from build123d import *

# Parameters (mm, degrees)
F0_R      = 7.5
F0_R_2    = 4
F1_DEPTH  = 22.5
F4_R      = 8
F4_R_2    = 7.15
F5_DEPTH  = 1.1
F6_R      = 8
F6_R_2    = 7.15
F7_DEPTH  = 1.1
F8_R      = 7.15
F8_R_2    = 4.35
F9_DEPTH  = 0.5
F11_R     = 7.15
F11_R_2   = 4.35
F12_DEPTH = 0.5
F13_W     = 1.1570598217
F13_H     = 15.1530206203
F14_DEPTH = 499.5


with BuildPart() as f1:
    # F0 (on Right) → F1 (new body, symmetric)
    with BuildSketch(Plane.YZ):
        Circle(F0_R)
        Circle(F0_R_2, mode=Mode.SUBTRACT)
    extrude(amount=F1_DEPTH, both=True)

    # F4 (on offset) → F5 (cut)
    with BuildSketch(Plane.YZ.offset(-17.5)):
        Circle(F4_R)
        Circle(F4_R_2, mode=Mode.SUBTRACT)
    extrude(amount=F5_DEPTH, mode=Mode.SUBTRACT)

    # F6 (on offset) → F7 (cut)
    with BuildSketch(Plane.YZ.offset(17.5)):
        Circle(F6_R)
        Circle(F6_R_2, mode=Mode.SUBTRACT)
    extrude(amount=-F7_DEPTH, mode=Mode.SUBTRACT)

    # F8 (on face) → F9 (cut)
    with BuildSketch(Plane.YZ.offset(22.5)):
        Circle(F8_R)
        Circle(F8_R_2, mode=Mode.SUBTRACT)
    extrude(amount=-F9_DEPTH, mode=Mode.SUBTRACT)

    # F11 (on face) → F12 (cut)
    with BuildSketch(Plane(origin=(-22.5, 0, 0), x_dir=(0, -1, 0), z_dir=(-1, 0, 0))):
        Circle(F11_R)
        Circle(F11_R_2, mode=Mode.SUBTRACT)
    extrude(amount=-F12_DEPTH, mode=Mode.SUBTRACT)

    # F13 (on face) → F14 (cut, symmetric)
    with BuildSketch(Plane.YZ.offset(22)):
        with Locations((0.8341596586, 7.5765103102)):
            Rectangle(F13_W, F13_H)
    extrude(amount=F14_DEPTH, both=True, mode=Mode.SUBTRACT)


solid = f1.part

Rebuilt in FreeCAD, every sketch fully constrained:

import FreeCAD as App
import Part
import Sketcher

V = App.Vector


def add_polygon(sketch, points):
    """Adds a closed chain of lines whose ends are joined by coincident constraints."""
    first, n = sketch.GeometryCount, len(points)
    for a, b in zip(points, points[1:] + points[:1]):
        sketch.addGeometry(Part.LineSegment(App.Vector(*a, 0), App.Vector(*b, 0)), False)
    for i in range(n):
        sketch.addConstraint(Sketcher.Constraint("Coincident", first + i, 2, first + (i + 1) % n, 1))

doc = App.newDocument("Part")
params = doc.addObject("Spreadsheet::Sheet", "Params")
for row, (alias, value) in enumerate([
    ("sketch1_diameter", "15 mm"),
    ("sketch1_diameter2", "8 mm"),
    ("pad1_length", "45 mm"),
    ("sketch2_diameter", "16 mm"),
    ("sketch2_diameter2", "14.3 mm"),
    ("pocket1_length", "1.1 mm"),
    ("sketch3_diameter", "16 mm"),
    ("sketch3_diameter2", "14.3 mm"),
    ("pocket2_length", "1.1 mm"),
    ("sketch4_diameter", "14.3 mm"),
    ("sketch4_diameter2", "8.7 mm"),
    ("pocket3_length", "0.5 mm"),
    ("sketch5_diameter", "14.3 mm"),
    ("sketch5_diameter2", "8.7 mm"),
    ("pocket4_length", "0.5 mm"),
    ("pocket5_length", "999 mm"),
], start=1):
    params.set(f"A{row}", alias)
    params.set(f"B{row}", "=" + value)
    params.setAlias(f"B{row}", alias)

body = doc.addObject("PartDesign::Body", "Body")

# Sketch on YZ plane
sketch1 = body.newObject("Sketcher::SketchObject", "Sketch")
sketch1.AttachmentSupport = (doc.getObject("YZ_Plane"), [""])
sketch1.MapMode = "FlatFace"
sketch1.addGeometry([
    Part.Circle(V(0, 0, 0), V(0, 0, 1), 7.5),
    Part.Circle(V(0, 0, 0), V(0, 0, 1), 4),
], False)
sketch1.addConstraint([
    Sketcher.Constraint("Coincident", 0, 3, -1, 1),
    Sketcher.Constraint("Coincident", 1, 3, -1, 1),
    Sketcher.Constraint("Diameter", 0, 15.0),
    Sketcher.Constraint("Diameter", 1, 8.0),
])
sketch1.setExpression("Constraints[2]", "Params.sketch1_diameter")
sketch1.setExpression("Constraints[3]", "Params.sketch1_diameter2")
pad1 = body.newObject("PartDesign::Pad", "Pad")
pad1.Profile = sketch1
pad1.setExpression("Length", "Params.pad1_length")
pad1.Midplane = True

# Sketch on YZ plane
sketch2 = body.newObject("Sketcher::SketchObject", "Sketch001")
sketch2.AttachmentSupport = (doc.getObject("YZ_Plane"), [""])
sketch2.MapMode = "FlatFace"
sketch2.AttachmentOffset = App.Placement(V(0, 0, -17.5), App.Rotation())
sketch2.addGeometry([
    Part.Circle(V(0, 0, 0), V(0, 0, 1), 8),
    Part.Circle(V(0, 0, 0), V(0, 0, 1), 7),
], False)
sketch2.addConstraint([
    Sketcher.Constraint("Coincident", 0, 3, -1, 1),
    Sketcher.Constraint("Coincident", 1, 3, -1, 1),
    Sketcher.Constraint("Diameter", 0, 16.0),
    Sketcher.Constraint("Diameter", 1, 14.3),
])
sketch2.setExpression("Constraints[2]", "Params.sketch2_diameter")
sketch2.setExpression("Constraints[3]", "Params.sketch2_diameter2")
pocket1 = body.newObject("PartDesign::Pocket", "Pocket")
pocket1.Profile = sketch2
pocket1.setExpression("Length", "Params.pocket1_length")
pocket1.Reversed = True

# Sketch on YZ plane
sketch3 = body.newObject("Sketcher::SketchObject", "Sketch002")
sketch3.AttachmentSupport = (doc.getObject("YZ_Plane"), [""])
sketch3.MapMode = "FlatFace"
sketch3.AttachmentOffset = App.Placement(V(0, 0, 17.5), App.Rotation())
sketch3.addGeometry([
    Part.Circle(V(0, 0, 0), V(0, 0, 1), 8),
    Part.Circle(V(0, 0, 0), V(0, 0, 1), 7),
], False)
sketch3.addConstraint([
    Sketcher.Constraint("Coincident", 0, 3, -1, 1),
    Sketcher.Constraint("Coincident", 1, 3, -1, 1),
    Sketcher.Constraint("Diameter", 0, 16.0),
    Sketcher.Constraint("Diameter", 1, 14.3),
])
sketch3.setExpression("Constraints[2]", "Params.sketch3_diameter")
sketch3.setExpression("Constraints[3]", "Params.sketch3_diameter2")
pocket2 = body.newObject("PartDesign::Pocket", "Pocket001")
pocket2.Profile = sketch3
pocket2.setExpression("Length", "Params.pocket2_length")

# Sketch on YZ plane
sketch4 = body.newObject("Sketcher::SketchObject", "Sketch003")
sketch4.AttachmentSupport = (doc.getObject("YZ_Plane"), [""])
sketch4.MapMode = "FlatFace"
sketch4.AttachmentOffset = App.Placement(V(0, 0, 22.5), App.Rotation())
sketch4.addGeometry([
    Part.Circle(V(0, 0, 0), V(0, 0, 1), 7.2),
    Part.Circle(V(0, 0, 0), V(0, 0, 1), 4.3),
], False)
sketch4.addConstraint([
    Sketcher.Constraint("Coincident", 0, 3, -1, 1),
    Sketcher.Constraint("Coincident", 1, 3, -1, 1),
    Sketcher.Constraint("Diameter", 0, 14.3),
    Sketcher.Constraint("Diameter", 1, 8.7),
])
sketch4.setExpression("Constraints[2]", "Params.sketch4_diameter")
sketch4.setExpression("Constraints[3]", "Params.sketch4_diameter2")
pocket3 = body.newObject("PartDesign::Pocket", "Pocket002")
pocket3.Profile = sketch4
pocket3.setExpression("Length", "Params.pocket3_length")

# Sketch on YZ plane
sketch5 = body.newObject("Sketcher::SketchObject", "Sketch004")
sketch5.AttachmentSupport = (doc.getObject("YZ_Plane"), [""])
sketch5.MapMode = "FlatFace"
sketch5.AttachmentOffset = App.Placement(V(0, 0, -22.5), App.Rotation())
sketch5.addGeometry([
    Part.Circle(V(0, 0, 0), V(0, 0, 1), 7.2),
    Part.Circle(V(0, 0, 0), V(0, 0, 1), 4.3),
], False)
sketch5.addConstraint([
    Sketcher.Constraint("Coincident", 0, 3, -1, 1),
    Sketcher.Constraint("Coincident", 1, 3, -1, 1),
    Sketcher.Constraint("Diameter", 0, 14.3),
    Sketcher.Constraint("Diameter", 1, 8.7),
])
sketch5.setExpression("Constraints[2]", "Params.sketch5_diameter")
sketch5.setExpression("Constraints[3]", "Params.sketch5_diameter2")
pocket4 = body.newObject("PartDesign::Pocket", "Pocket003")
pocket4.Profile = sketch5
pocket4.setExpression("Length", "Params.pocket4_length")
pocket4.Reversed = True

# Sketch on YZ plane
sketch6 = body.newObject("Sketcher::SketchObject", "Sketch005")
sketch6.AttachmentSupport = (doc.getObject("YZ_Plane"), [""])
sketch6.MapMode = "FlatFace"
sketch6.AttachmentOffset = App.Placement(V(0, 0, 22), App.Rotation())
add_polygon(sketch6, [(0.3, 15.2), (0.3, 0), (1.4, 0), (1.4, 15.2)])  # lines 0-3
sketch6.addConstraint([
    Sketcher.Constraint("Vertical", 0),
    Sketcher.Constraint("Horizontal", 1),
    Sketcher.Constraint("Vertical", 2),
    Sketcher.Constraint("Horizontal", 3),
    Sketcher.Constraint("PointOnObject", 0, 2, -1),
    Sketcher.Constraint("DistanceX", 1, 1, 1, 2, 1.15706),
    Sketcher.Constraint("DistanceY", 0, 2, 0, 1, 15.153021),
    Sketcher.Constraint("DistanceX", -1, 1, 0, 2, 0.25563),
])
pocket5 = body.newObject("PartDesign::Pocket", "Pocket004")
pocket5.Profile = sketch6
pocket5.setExpression("Length", "Params.pocket5_length")
pocket5.Midplane = True

doc.recompute()
